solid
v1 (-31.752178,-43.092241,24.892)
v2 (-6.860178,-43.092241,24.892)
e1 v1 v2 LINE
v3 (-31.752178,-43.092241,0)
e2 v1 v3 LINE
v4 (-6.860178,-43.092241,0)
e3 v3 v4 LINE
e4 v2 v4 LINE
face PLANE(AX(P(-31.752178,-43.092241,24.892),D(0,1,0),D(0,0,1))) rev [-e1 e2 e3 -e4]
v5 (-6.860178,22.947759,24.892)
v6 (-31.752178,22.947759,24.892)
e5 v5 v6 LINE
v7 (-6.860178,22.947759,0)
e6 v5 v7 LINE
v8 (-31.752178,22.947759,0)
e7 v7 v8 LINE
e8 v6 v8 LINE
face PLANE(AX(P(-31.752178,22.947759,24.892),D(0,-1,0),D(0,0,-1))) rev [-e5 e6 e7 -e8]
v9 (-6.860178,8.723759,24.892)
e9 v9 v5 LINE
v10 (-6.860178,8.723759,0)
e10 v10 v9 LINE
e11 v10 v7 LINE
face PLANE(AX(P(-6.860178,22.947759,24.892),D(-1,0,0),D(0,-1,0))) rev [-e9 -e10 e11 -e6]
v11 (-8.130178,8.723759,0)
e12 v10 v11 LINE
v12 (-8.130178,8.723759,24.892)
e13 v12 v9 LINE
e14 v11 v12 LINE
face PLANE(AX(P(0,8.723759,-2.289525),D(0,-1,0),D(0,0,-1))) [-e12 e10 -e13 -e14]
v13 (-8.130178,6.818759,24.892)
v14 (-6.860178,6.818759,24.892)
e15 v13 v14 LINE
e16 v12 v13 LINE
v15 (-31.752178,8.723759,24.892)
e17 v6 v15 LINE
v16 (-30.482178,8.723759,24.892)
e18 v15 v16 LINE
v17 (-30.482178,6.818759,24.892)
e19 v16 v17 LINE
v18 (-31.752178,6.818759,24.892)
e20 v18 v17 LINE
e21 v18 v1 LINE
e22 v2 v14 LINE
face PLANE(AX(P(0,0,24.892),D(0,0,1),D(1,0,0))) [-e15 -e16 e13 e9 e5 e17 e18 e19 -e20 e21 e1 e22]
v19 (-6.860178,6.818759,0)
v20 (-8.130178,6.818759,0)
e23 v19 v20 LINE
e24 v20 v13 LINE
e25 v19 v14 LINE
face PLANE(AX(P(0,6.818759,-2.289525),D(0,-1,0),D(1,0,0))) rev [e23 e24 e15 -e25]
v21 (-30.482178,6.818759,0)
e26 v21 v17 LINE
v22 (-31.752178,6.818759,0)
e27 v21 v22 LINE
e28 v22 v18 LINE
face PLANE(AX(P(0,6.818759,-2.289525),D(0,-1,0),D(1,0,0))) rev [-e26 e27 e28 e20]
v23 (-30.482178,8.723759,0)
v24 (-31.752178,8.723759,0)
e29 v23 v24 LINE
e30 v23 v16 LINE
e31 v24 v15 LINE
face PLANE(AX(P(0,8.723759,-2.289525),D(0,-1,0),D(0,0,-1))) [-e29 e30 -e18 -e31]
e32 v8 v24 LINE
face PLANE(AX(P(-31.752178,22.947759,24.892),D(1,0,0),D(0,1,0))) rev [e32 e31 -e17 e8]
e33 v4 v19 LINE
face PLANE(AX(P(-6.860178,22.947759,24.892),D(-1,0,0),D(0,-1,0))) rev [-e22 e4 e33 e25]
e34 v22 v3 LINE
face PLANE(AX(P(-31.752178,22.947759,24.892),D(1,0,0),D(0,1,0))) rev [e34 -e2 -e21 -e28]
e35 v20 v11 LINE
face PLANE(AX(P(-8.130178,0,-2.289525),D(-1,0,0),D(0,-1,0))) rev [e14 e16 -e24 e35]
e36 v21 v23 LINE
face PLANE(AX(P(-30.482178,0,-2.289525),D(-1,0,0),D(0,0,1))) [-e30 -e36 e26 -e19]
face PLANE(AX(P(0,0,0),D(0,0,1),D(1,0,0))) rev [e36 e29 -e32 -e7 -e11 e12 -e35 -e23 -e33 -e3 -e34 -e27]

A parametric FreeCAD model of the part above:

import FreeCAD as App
import Part
import Sketcher
from FreeCAD import Vector
Q = App.Units.Quantity

doc = App.newDocument("Part")
params = doc.addObject("Spreadsheet::Sheet", "Params")
for row, (alias, value) in enumerate([
    ("sketch1_height", "2.6 in"),
    ("sketch1_width", "0.98 in"),
    ("pad1_length", "0.98 in"),
    ("sketch2_width", "0.05 in"),
    ("sketch2_height", "0.075 in"),
    ("pocket1_length", "0.98 in"),
], start=1):
    params.set(f"A{row}", alias)
    params.set(f"B{row}", "=" + value)
    params.setAlias(f"B{row}", alias)

body = doc.addObject("PartDesign::Body", "Body")

# Sketch on XY plane
sketch1 = body.newObject("Sketcher::SketchObject", "Sketch")
sketch1.AttachmentSupport = (doc.getObject("XY_Plane"), [""])
sketch1.MapMode = "FlatFace"
sketch1.addGeometry([
    Part.LineSegment(Vector(-31.752178, 22.947759, 0), Vector(-31.752178, -43.092241, 0)),
    Part.LineSegment(Vector(-31.752178, -43.092241, 0), Vector(-6.860178, -43.092241, 0)),
    Part.LineSegment(Vector(-6.860178, -43.092241, 0), Vector(-6.860178, 22.947759, 0)),
    Part.LineSegment(Vector(-6.860178, 22.947759, 0), Vector(-31.752178, 22.947759, 0)),
], False)
sketch1.addConstraint([
    Sketcher.Constraint("Coincident", 0, 2, 1, 1),
    Sketcher.Constraint("Coincident", 1, 2, 2, 1),
    Sketcher.Constraint("Coincident", 2, 2, 3, 1),
    Sketcher.Constraint("Coincident", 3, 2, 0, 1),
    Sketcher.Constraint("Vertical", 0),
    Sketcher.Constraint("Horizontal", 1),
    Sketcher.Constraint("Vertical", 2),
    Sketcher.Constraint("Horizontal", 3),
    Sketcher.Constraint("DistanceY", 0, 2, 0, 1, Q("2.6 in")),
    Sketcher.Constraint("DistanceX", 1, 1, 1, 2, Q("0.98 in")),
    Sketcher.Constraint("DistanceY", 0, 2, -1, 1, Q("43.092241 mm")),
    Sketcher.Constraint("DistanceX", 0, 2, -1, 1, Q("31.752178 mm")),
])
sketch1.setExpression("Constraints[8]", "Params.sketch1_height")
sketch1.setExpression("Constraints[9]", "Params.sketch1_width")
pad1 = body.newObject("PartDesign::Pad", "Pad")
pad1.Profile = sketch1
pad1.setExpression("Length", "Params.pad1_length")

# Sketch on XY plane
sketch2 = body.newObject("Sketcher::SketchObject", "Sketch001")
sketch2.AttachmentSupport = (doc.getObject("XY_Plane"), [""])
sketch2.MapMode = "FlatFace"
sketch2.AttachmentOffset = App.Placement(Vector(0, 0, 0.98 * 25.4), App.Rotation())
sketch2.addGeometry([
    Part.LineSegment(Vector(-31.752178, 8.723759, 0), Vector(-31.752178, 6.818759, 0)),  # 0
    Part.LineSegment(Vector(-31.752178, 6.818759, 0), Vector(-30.482178, 6.818759, 0)),  # 1
    Part.LineSegment(Vector(-30.482178, 6.818759, 0), Vector(-30.482178, 8.723759, 0)),  # 2
    Part.LineSegment(Vector(-30.482178, 8.723759, 0), Vector(-31.752178, 8.723759, 0)),  # 3
    Part.LineSegment(Vector(-8.130178, 8.723759, 0), Vector(-8.130178, 6.818759, 0)),  # 4
    Part.LineSegment(Vector(-8.130178, 6.818759, 0), Vector(-6.860178, 6.818759, 0)),  # 5
    Part.LineSegment(Vector(-6.860178, 6.818759, 0), Vector(-6.860178, 8.723759, 0)),  # 6
    Part.LineSegment(Vector(-6.860178, 8.723759, 0), Vector(-8.130178, 8.723759, 0)),  # 7
], False)
sketch2.addConstraint([
    Sketcher.Constraint("Coincident", 0, 2, 1, 1),
    Sketcher.Constraint("Coincident", 1, 2, 2, 1),
    Sketcher.Constraint("Coincident", 2, 2, 3, 1),
    Sketcher.Constraint("Coincident", 3, 2, 0, 1),
    Sketcher.Constraint("Coincident", 4, 2, 5, 1),
    Sketcher.Constraint("Coincident", 5, 2, 6, 1),
    Sketcher.Constraint("Coincident", 6, 2, 7, 1),
    Sketcher.Constraint("Coincident", 7, 2, 4, 1),
    Sketcher.Constraint("Vertical", 0),
    Sketcher.Constraint("Horizontal", 1),
    Sketcher.Constraint("Vertical", 2),
    Sketcher.Constraint("Horizontal", 3),
    Sketcher.Constraint("Vertical", 4),
    Sketcher.Constraint("Horizontal", 5),
    Sketcher.Constraint("Vertical", 6),
    Sketcher.Constraint("Horizontal", 7),
    Sketcher.Constraint("Horizontal", 1, 2, 4, 2),
    Sketcher.Constraint("Horizontal", 3, 2, 6, 2),
    Sketcher.Constraint("Equal", 3, 5),
    Sketcher.Constraint("DistanceX", 1, 1, 1, 2, Q("0.05 in")),
    Sketcher.Constraint("DistanceY", 0, 2, 0, 1, Q("0.075 in")),
    Sketcher.Constraint("DistanceX", 1, 2, 4, 2, Q("0.88 in")),
    Sketcher.Constraint("DistanceY", -1, 1, 0, 2, Q("6.818759 mm")),
    Sketcher.Constraint("DistanceX", 0, 2, -1, 1, Q("31.752178 mm")),
])
sketch2.setExpression("Constraints[19]", "Params.sketch2_width")
sketch2.setExpression("Constraints[20]", "Params.sketch2_height")
pocket1 = body.newObject("PartDesign::Pocket", "Pocket")
pocket1.Profile = sketch2
pocket1.setExpression("Length", "Params.pocket1_length")

doc.recompute()
